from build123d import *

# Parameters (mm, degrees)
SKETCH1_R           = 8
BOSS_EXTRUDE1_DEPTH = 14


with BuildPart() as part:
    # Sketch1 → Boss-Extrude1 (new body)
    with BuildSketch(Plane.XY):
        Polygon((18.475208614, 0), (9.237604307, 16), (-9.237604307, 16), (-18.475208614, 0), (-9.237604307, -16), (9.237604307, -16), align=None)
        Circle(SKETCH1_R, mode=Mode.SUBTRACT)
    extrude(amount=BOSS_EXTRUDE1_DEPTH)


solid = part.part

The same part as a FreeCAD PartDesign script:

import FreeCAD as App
import Part
import Sketcher

V = App.Vector
Q = App.Units.Quantity

doc = App.newDocument("Part")
body = doc.addObject("PartDesign::Body", "Body")

sketch1 = body.newObject("Sketcher::SketchObject", "Sketch")
sketch1.AttachmentSupport = (doc.getObject("XY_Plane"), [""])
sketch1.MapMode = "FlatFace"
sketch1.addGeometry([
    Part.LineSegment(V(18, 0, 0), V(9, 16, 0)),
    Part.LineSegment(V(9, 16, 0), V(-9, 16, 0)),
    Part.LineSegment(V(-9, 16, 0), V(-18, 0, 0)),
    Part.LineSegment(V(-18, 0, 0), V(-9, -16, 0)),
    Part.LineSegment(V(-9, -16, 0), V(9, -16, 0)),
    Part.LineSegment(V(9, -16, 0), V(18, 0, 0)),
    Part.Circle(V(0, 0, 0), V(0, 0, 1), 8),
], False)
sketch1.addConstraint([
    Sketcher.Constraint("Coincident", 0, 2, 1, 1),
    Sketcher.Constraint("Coincident", 1, 2, 2, 1),
    Sketcher.Constraint("Coincident", 2, 2, 3, 1),
    Sketcher.Constraint("Coincident", 3, 2, 4, 1),
    Sketcher.Constraint("Coincident", 4, 2, 5, 1),
    Sketcher.Constraint("Coincident", 5, 2, 0, 1),
    Sketcher.Constraint("Horizontal", 1),
    Sketcher.Constraint("Horizontal", 4),
    Sketcher.Constraint("Coincident", 6, 3, -1, 1),
    Sketcher.Constraint("Symmetric", 0, 2, 3, 2, -1, 1),
    Sketcher.Constraint("Symmetric", 2, 2, 5, 2, -1, 1),
    Sketcher.Constraint("PointOnObject", 2, 2, -1),
    Sketcher.Constraint("Parallel", 2, 5),
    Sketcher.Constraint("Vertical", 1, 2, 3, 2),
    Sketcher.Constraint("Diameter", 6, Q("16 mm")),
    Sketcher.Constraint("Angle", 0, Q("120 deg")),
    Sketcher.Constraint("DistanceY", -1, 1, 0, 2, Q("16 mm")),
    Sketcher.Constraint("DistanceX", 1, 2, 1, 1, Q("18.475209 mm")),
])
pad1 = body.newObject("PartDesign::Pad", "Pad")
pad1.Profile = sketch1
pad1.Length = 14

doc.recompute()
